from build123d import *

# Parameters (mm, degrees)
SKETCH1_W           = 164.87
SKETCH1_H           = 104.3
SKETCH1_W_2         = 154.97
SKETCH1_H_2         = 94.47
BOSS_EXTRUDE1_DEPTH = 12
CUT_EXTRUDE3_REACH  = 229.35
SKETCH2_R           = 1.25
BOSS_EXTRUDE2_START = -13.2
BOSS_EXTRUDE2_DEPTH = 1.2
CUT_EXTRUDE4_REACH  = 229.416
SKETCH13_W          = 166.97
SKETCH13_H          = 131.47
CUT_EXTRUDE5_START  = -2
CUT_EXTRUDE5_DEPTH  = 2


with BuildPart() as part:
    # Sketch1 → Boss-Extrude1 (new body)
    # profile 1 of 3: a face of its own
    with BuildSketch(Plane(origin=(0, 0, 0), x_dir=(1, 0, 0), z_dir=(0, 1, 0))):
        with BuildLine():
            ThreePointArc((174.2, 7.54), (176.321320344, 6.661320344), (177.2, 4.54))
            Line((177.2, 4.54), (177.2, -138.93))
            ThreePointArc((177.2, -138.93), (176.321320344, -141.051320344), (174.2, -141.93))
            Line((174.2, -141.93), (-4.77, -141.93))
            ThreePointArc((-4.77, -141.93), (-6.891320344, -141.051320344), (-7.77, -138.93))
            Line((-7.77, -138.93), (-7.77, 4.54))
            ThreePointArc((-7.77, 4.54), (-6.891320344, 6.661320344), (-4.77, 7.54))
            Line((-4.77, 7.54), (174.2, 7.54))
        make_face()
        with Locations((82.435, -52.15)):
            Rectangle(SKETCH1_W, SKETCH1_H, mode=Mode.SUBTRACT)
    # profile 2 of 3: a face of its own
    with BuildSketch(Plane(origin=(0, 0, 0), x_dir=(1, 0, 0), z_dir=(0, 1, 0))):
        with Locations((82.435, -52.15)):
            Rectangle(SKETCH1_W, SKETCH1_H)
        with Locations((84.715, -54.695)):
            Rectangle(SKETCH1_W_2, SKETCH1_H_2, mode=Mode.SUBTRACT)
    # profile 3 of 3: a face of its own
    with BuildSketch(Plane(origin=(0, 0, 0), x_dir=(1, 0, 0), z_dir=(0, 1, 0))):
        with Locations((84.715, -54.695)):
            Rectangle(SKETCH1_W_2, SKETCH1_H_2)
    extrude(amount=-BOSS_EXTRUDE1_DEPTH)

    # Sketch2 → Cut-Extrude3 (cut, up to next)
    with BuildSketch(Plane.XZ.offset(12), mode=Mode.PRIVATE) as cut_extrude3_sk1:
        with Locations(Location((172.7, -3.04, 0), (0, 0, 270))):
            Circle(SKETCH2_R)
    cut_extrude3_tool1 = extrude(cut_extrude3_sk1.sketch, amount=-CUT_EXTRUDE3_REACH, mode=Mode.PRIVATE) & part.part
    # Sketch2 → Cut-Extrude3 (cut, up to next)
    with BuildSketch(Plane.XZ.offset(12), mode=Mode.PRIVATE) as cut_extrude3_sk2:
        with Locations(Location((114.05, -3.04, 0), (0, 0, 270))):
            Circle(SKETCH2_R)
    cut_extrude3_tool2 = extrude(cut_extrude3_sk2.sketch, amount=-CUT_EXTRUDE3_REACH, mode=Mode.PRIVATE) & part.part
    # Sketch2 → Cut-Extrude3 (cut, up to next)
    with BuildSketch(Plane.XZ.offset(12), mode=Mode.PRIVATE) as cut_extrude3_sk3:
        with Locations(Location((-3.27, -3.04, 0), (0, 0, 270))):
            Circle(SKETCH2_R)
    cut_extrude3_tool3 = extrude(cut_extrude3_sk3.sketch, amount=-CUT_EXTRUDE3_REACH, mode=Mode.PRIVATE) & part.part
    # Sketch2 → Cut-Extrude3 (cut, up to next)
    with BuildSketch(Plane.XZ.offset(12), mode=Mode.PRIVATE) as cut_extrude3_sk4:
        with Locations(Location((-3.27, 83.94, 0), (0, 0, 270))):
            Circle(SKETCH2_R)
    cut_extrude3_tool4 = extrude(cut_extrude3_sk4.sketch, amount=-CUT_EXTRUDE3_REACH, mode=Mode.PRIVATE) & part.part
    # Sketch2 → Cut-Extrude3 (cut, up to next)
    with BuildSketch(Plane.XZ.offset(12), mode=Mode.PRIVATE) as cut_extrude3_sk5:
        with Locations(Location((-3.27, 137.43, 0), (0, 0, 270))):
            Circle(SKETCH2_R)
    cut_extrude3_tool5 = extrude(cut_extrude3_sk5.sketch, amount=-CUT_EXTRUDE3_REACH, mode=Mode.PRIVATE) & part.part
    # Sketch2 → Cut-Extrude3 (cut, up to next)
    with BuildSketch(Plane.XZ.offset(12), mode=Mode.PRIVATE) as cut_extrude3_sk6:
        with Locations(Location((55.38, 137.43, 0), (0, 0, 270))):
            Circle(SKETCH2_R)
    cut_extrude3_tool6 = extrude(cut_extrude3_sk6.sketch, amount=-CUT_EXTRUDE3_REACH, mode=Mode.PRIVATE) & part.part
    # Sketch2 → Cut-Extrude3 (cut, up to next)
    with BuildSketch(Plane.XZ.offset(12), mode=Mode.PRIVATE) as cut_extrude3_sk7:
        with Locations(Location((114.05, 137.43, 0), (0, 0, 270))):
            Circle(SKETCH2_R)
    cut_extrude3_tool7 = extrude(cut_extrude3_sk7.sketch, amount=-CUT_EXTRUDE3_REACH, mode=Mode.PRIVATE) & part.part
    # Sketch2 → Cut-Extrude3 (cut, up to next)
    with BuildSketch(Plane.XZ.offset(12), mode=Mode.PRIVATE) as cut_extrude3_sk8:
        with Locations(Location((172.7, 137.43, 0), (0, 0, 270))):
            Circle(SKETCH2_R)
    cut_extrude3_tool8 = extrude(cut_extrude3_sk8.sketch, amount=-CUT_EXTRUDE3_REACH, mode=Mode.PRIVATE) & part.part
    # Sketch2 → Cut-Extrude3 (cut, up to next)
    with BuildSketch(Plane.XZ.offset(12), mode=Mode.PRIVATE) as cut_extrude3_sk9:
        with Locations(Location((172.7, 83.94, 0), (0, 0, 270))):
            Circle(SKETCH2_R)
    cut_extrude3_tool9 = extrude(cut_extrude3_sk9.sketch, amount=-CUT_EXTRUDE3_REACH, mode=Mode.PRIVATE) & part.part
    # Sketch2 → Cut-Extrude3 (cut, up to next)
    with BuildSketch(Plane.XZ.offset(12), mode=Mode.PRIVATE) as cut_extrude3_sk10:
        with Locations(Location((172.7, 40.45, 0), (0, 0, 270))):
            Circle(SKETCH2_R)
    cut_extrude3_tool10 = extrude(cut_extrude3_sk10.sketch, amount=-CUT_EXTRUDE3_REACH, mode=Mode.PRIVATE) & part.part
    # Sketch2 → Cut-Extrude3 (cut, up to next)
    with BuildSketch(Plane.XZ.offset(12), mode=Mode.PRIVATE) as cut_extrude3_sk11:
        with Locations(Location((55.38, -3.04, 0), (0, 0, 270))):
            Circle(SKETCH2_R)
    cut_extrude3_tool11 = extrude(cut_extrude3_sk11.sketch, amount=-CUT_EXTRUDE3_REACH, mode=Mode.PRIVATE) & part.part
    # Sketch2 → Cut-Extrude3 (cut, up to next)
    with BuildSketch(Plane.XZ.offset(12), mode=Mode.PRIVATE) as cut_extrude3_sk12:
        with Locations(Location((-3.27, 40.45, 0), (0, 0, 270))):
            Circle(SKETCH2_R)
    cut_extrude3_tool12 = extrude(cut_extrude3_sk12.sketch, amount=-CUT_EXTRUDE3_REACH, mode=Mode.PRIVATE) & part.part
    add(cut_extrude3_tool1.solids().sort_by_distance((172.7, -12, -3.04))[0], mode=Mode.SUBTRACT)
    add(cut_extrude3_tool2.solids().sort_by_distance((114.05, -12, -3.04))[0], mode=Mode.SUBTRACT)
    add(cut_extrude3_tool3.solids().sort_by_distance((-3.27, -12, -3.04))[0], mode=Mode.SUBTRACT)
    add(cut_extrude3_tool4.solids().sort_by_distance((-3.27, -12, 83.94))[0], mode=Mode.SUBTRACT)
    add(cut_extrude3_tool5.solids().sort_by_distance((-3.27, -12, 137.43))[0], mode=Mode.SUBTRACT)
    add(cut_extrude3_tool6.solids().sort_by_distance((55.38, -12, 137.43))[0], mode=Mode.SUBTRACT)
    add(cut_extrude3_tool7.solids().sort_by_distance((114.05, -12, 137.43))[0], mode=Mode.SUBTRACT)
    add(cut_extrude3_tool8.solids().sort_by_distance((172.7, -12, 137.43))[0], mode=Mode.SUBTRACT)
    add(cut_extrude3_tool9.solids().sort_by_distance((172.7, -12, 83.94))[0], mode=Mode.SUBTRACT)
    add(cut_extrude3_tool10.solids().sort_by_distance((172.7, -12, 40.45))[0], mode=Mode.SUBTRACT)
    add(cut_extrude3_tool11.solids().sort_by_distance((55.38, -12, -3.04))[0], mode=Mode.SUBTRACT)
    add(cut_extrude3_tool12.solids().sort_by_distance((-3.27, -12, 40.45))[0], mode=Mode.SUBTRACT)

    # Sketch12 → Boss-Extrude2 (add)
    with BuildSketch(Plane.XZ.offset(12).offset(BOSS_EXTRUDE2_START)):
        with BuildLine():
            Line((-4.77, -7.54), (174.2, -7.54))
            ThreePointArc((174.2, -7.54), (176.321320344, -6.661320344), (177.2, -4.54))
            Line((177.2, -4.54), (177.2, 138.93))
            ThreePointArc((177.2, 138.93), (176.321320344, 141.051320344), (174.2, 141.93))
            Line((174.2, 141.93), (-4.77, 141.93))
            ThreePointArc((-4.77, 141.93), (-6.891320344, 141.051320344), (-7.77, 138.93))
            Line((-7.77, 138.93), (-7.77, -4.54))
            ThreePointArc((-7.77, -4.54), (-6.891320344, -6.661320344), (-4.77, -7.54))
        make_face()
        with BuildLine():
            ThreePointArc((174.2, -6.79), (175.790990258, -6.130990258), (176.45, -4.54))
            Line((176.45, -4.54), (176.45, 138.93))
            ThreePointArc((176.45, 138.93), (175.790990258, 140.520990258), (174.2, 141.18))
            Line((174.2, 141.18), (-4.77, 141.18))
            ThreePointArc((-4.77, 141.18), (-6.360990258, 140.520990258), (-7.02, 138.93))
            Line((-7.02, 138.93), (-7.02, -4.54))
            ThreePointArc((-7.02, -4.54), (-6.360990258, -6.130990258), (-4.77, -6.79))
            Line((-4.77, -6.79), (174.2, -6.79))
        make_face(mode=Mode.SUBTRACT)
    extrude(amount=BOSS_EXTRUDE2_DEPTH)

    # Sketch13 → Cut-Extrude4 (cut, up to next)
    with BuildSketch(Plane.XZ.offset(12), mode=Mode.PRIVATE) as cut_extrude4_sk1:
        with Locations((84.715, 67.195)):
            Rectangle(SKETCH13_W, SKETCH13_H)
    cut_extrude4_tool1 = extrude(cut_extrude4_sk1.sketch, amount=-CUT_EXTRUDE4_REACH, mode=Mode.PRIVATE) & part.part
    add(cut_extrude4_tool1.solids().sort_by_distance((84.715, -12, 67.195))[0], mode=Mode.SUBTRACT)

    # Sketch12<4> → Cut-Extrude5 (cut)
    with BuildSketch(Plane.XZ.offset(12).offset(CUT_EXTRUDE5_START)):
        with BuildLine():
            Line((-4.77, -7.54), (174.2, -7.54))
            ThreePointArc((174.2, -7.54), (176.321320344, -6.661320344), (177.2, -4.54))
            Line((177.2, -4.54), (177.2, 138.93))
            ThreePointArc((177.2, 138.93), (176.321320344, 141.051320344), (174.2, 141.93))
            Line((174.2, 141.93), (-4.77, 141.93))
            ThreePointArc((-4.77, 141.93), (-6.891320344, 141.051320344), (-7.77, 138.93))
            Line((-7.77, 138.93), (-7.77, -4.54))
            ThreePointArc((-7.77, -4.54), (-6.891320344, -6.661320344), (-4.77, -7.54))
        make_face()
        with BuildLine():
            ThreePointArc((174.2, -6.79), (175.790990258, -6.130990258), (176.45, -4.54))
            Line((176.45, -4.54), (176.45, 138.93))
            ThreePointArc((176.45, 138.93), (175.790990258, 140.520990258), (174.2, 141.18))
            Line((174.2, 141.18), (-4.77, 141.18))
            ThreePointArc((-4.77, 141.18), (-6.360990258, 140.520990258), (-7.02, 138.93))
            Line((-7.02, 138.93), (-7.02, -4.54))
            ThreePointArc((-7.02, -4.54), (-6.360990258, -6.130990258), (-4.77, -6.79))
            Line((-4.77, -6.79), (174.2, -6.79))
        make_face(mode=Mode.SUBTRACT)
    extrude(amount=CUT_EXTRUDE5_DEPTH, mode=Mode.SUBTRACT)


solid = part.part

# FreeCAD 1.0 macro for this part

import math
import FreeCAD as App
import Part
import Sketcher
Q = App.Units.Quantity


def add_polygon(sketch, points):
    """Adds a closed chain of lines whose ends are joined by coincident constraints."""
    first, n = sketch.GeometryCount, len(points)
    for a, b in zip(points, points[1:] + points[:1]):
        sketch.addGeometry(Part.LineSegment(App.Vector(*a, 0), App.Vector(*b, 0)), False)
    for i in range(n):
        sketch.addConstraint(Sketcher.Constraint("Coincident", first + i, 2, first + (i + 1) % n, 1))

doc = App.newDocument("Part")
params = doc.addObject("Spreadsheet::Sheet", "Params")
for row, (alias, value) in enumerate([
    ("sketch1_radius", "3 mm"),
    ("sketch1_width", "178.97 mm"),
    ("sketch1_height", "143.47 mm"),
    ("pad1_length", "12 mm"),
    ("sketch2_diameter", "2.5 mm"),
    ("sketch3_diameter", "2.5 mm"),
    ("sketch4_diameter", "2.5 mm"),
    ("sketch5_diameter", "2.5 mm"),
    ("sketch6_diameter", "2.5 mm"),
    ("sketch7_diameter", "2.5 mm"),
    ("sketch8_diameter", "2.5 mm"),
    ("sketch9_diameter", "2.5 mm"),
    ("sketch10_diameter", "2.5 mm"),
    ("sketch11_diameter", "2.5 mm"),
    ("sketch12_diameter", "2.5 mm"),
    ("sketch13_diameter", "2.5 mm"),
    ("sketch14_radius", "3 mm"),
    ("sketch14_radius2", "2.25 mm"),
    ("sketch14_width", "178.97 mm"),
    ("sketch14_height", "143.47 mm"),
    ("pad2_length", "1.2 mm"),
    ("sketch15_width", "166.97 mm"),
    ("sketch15_height", "131.47 mm"),
    ("sketch16_radius", "3 mm"),
    ("sketch16_radius2", "2.25 mm"),
    ("sketch16_width", "178.97 mm"),
    ("sketch16_height", "143.47 mm"),
    ("pocket14_length", "2 mm"),
], start=1):
    params.set(f"A{row}", alias)
    params.set(f"B{row}", "=" + value)
    params.setAlias(f"B{row}", alias)

body = doc.addObject("PartDesign::Body", "Body")

sketch1 = body.newObject("Sketcher::SketchObject", "Sketch")
sketch1.AttachmentSupport = (doc.getObject("XZ_Plane"), [""])
sketch1.MapMode = "FlatFace"
sketch1.addGeometry([
    Part.ArcOfCircle(Part.Circle(App.Vector(174.2, -4.5, 0), App.Vector(0, 0, 1), 3), math.radians(-90), math.radians(0)),
    Part.LineSegment(App.Vector(174.2, -7.5, 0), App.Vector(-4.8, -7.5, 0)),
    Part.ArcOfCircle(Part.Circle(App.Vector(-4.8, -4.5, 0), App.Vector(0, 0, 1), 3), math.radians(180), math.radians(270)),
    Part.LineSegment(App.Vector(-7.8, -4.5, 0), App.Vector(-7.8, 138.9, 0)),
    Part.ArcOfCircle(Part.Circle(App.Vector(-4.8, 138.9, 0), App.Vector(0, 0, 1), 3), math.radians(90), math.radians(180)),
    Part.LineSegment(App.Vector(-4.8, 141.9, 0), App.Vector(174.2, 141.9, 0)),
    Part.ArcOfCircle(Part.Circle(App.Vector(174.2, 138.9, 0), App.Vector(0, 0, 1), 3), math.radians(0), math.radians(90)),
    Part.LineSegment(App.Vector(177.2, 138.9, 0), App.Vector(177.2, -4.5, 0)),
], False)
sketch1.addConstraint([
    Sketcher.Constraint("Tangent", 0, 1, 1, 1),
    Sketcher.Constraint("Tangent", 1, 2, 2, 2),
    Sketcher.Constraint("Tangent", 2, 1, 3, 1),
    Sketcher.Constraint("Tangent", 3, 2, 4, 2),
    Sketcher.Constraint("Tangent", 4, 1, 5, 1),
    Sketcher.Constraint("Tangent", 5, 2, 6, 2),
    Sketcher.Constraint("Tangent", 6, 1, 7, 1),
    Sketcher.Constraint("Tangent", 7, 2, 0, 2),
    Sketcher.Constraint("Horizontal", 1),
    Sketcher.Constraint("Vertical", 3),
    Sketcher.Constraint("Horizontal", 5),
    Sketcher.Constraint("Vertical", 7),
    Sketcher.Constraint("Equal", 0, 2),
    Sketcher.Constraint("Equal", 2, 4),
    Sketcher.Constraint("Equal", 4, 6),
    Sketcher.Constraint("Radius", 0, Q("3 mm")),
    Sketcher.Constraint("DistanceX", 1, 2, 1, 1, Q("178.97 mm")),
    Sketcher.Constraint("DistanceY", 3, 1, 3, 2, Q("143.47 mm")),
    Sketcher.Constraint("DistanceX", -1, 1, 0, 3, Q("174.2 mm")),
    Sketcher.Constraint("DistanceY", 0, 3, -1, 1, Q("4.54 mm")),
])
sketch1.setExpression("Constraints[15]", "Params.sketch1_radius")
sketch1.setExpression("Constraints[16]", "Params.sketch1_width")
sketch1.setExpression("Constraints[17]", "Params.sketch1_height")
pad1 = body.newObject("PartDesign::Pad", "Pad")
pad1.Profile = sketch1
pad1.setExpression("Length", "Params.pad1_length")

sketch2 = body.newObject("Sketcher::SketchObject", "Sketch001")
sketch2.AttachmentSupport = (doc.getObject("XZ_Plane"), [""])
sketch2.MapMode = "FlatFace"
sketch2.AttachmentOffset = App.Placement(App.Vector(0, 0, 12), App.Rotation())
sketch2.addGeometry(Part.Circle(App.Vector(172.7, -3, 0), App.Vector(0, 0, 1), 1.2), False)
sketch2.addConstraint([
    Sketcher.Constraint("Diameter", 0, Q("2.5 mm")),
    Sketcher.Constraint("DistanceX", -1, 1, 0, 3, Q("172.7 mm")),
    Sketcher.Constraint("DistanceY", 0, 3, -1, 1, Q("3.04 mm")),
])
sketch2.setExpression("Constraints[0]", "Params.sketch2_diameter")
pocket1 = body.newObject("PartDesign::Pocket", "Pocket")
pocket1.Profile = sketch2
pocket1.Type = "UpToFirst"

sketch3 = body.newObject("Sketcher::SketchObject", "Sketch002")
sketch3.AttachmentSupport = (doc.getObject("XZ_Plane"), [""])
sketch3.MapMode = "FlatFace"
sketch3.AttachmentOffset = App.Placement(App.Vector(0, 0, 12), App.Rotation())
sketch3.addGeometry(Part.Circle(App.Vector(114, -3, 0), App.Vector(0, 0, 1), 1.2), False)
sketch3.addConstraint([
    Sketcher.Constraint("Diameter", 0, Q("2.5 mm")),
    Sketcher.Constraint("DistanceX", -1, 1, 0, 3, Q("114.05 mm")),
    Sketcher.Constraint("DistanceY", 0, 3, -1, 1, Q("3.04 mm")),
])
sketch3.setExpression("Constraints[0]", "Params.sketch3_diameter")
pocket2 = body.newObject("PartDesign::Pocket", "Pocket001")
pocket2.Profile = sketch3
pocket2.Type = "UpToFirst"

sketch4 = body.newObject("Sketcher::SketchObject", "Sketch003")
sketch4.AttachmentSupport = (doc.getObject("XZ_Plane"), [""])
sketch4.MapMode = "FlatFace"
sketch4.AttachmentOffset = App.Placement(App.Vector(0, 0, 12), App.Rotation())
sketch4.addGeometry(Part.Circle(App.Vector(-3.3, -3, 0), App.Vector(0, 0, 1), 1.2), False)
sketch4.addConstraint([
    Sketcher.Constraint("Diameter", 0, Q("2.5 mm")),
    Sketcher.Constraint("DistanceX", 0, 3, -1, 1, Q("3.27 mm")),
    Sketcher.Constraint("DistanceY", 0, 3, -1, 1, Q("3.04 mm")),
])
sketch4.setExpression("Constraints[0]", "Params.sketch4_diameter")
pocket3 = body.newObject("PartDesign::Pocket", "Pocket002")
pocket3.Profile = sketch4
pocket3.Type = "UpToFirst"

sketch5 = body.newObject("Sketcher::SketchObject", "Sketch004")
sketch5.AttachmentSupport = (doc.getObject("XZ_Plane"), [""])
sketch5.MapMode = "FlatFace"
sketch5.AttachmentOffset = App.Placement(App.Vector(0, 0, 12), App.Rotation())
sketch5.addGeometry(Part.Circle(App.Vector(-3.3, 83.9, 0), App.Vector(0, 0, 1), 1.2), False)
sketch5.addConstraint([
    Sketcher.Constraint("Diameter", 0, Q("2.5 mm")),
    Sketcher.Constraint("DistanceX", 0, 3, -1, 1, Q("3.27 mm")),
    Sketcher.Constraint("DistanceY", -1, 1, 0, 3, Q("83.94 mm")),
])
sketch5.setExpression("Constraints[0]", "Params.sketch5_diameter")
pocket4 = body.newObject("PartDesign::Pocket", "Pocket003")
pocket4.Profile = sketch5
pocket4.Type = "UpToFirst"

sketch6 = body.newObject("Sketcher::SketchObject", "Sketch005")
sketch6.AttachmentSupport = (doc.getObject("XZ_Plane"), [""])
sketch6.MapMode = "FlatFace"
sketch6.AttachmentOffset = App.Placement(App.Vector(0, 0, 12), App.Rotation())
sketch6.addGeometry(Part.Circle(App.Vector(-3.3, 137.4, 0), App.Vector(0, 0, 1), 1.2), False)
sketch6.addConstraint([
    Sketcher.Constraint("Diameter", 0, Q("2.5 mm")),
    Sketcher.Constraint("DistanceX", 0, 3, -1, 1, Q("3.27 mm")),
    Sketcher.Constraint("DistanceY", -1, 1, 0, 3, Q("137.43 mm")),
])
sketch6.setExpression("Constraints[0]", "Params.sketch6_diameter")
pocket5 = body.newObject("PartDesign::Pocket", "Pocket004")
pocket5.Profile = sketch6
pocket5.Type = "UpToFirst"

sketch7 = body.newObject("Sketcher::SketchObject", "Sketch006")
sketch7.AttachmentSupport = (doc.getObject("XZ_Plane"), [""])
sketch7.MapMode = "FlatFace"
sketch7.AttachmentOffset = App.Placement(App.Vector(0, 0, 12), App.Rotation())
sketch7.addGeometry(Part.Circle(App.Vector(55.4, 137.4, 0), App.Vector(0, 0, 1), 1.2), False)
sketch7.addConstraint([
    Sketcher.Constraint("Diameter", 0, Q("2.5 mm")),
    Sketcher.Constraint("DistanceX", -1, 1, 0, 3, Q("55.38 mm")),
    Sketcher.Constraint("DistanceY", -1, 1, 0, 3, Q("137.43 mm")),
])
sketch7.setExpression("Constraints[0]", "Params.sketch7_diameter")
pocket6 = body.newObject("PartDesign::Pocket", "Pocket005")
pocket6.Profile = sketch7
pocket6.Type = "UpToFirst"

sketch8 = body.newObject("Sketcher::SketchObject", "Sketch007")
sketch8.AttachmentSupport = (doc.getObject("XZ_Plane"), [""])
sketch8.MapMode = "FlatFace"
sketch8.AttachmentOffset = App.Placement(App.Vector(0, 0, 12), App.Rotation())
sketch8.addGeometry(Part.Circle(App.Vector(114, 137.4, 0), App.Vector(0, 0, 1), 1.2), False)
sketch8.addConstraint([
    Sketcher.Constraint("Diameter", 0, Q("2.5 mm")),
    Sketcher.Constraint("DistanceX", -1, 1, 0, 3, Q("114.05 mm")),
    Sketcher.Constraint("DistanceY", -1, 1, 0, 3, Q("137.43 mm")),
])
sketch8.setExpression("Constraints[0]", "Params.sketch8_diameter")
pocket7 = body.newObject("PartDesign::Pocket", "Pocket006")
pocket7.Profile = sketch8
pocket7.Type = "UpToFirst"

sketch9 = body.newObject("Sketcher::SketchObject", "Sketch008")
sketch9.AttachmentSupport = (doc.getObject("XZ_Plane"), [""])
sketch9.MapMode = "FlatFace"
sketch9.AttachmentOffset = App.Placement(App.Vector(0, 0, 12), App.Rotation())
sketch9.addGeometry(Part.Circle(App.Vector(172.7, 137.4, 0), App.Vector(0, 0, 1), 1.2), False)
sketch9.addConstraint([
    Sketcher.Constraint("Diameter", 0, Q("2.5 mm")),
    Sketcher.Constraint("DistanceX", -1, 1, 0, 3, Q("172.7 mm")),
    Sketcher.Constraint("DistanceY", -1, 1, 0, 3, Q("137.43 mm")),
])
sketch9.setExpression("Constraints[0]", "Params.sketch9_diameter")
pocket8 = body.newObject("PartDesign::Pocket", "Pocket007")
pocket8.Profile = sketch9
pocket8.Type = "UpToFirst"

sketch10 = body.newObject("Sketcher::SketchObject", "Sketch009")
sketch10.AttachmentSupport = (doc.getObject("XZ_Plane"), [""])
sketch10.MapMode = "FlatFace"
sketch10.AttachmentOffset = App.Placement(App.Vector(0, 0, 12), App.Rotation())
sketch10.addGeometry(Part.Circle(App.Vector(172.7, 83.9, 0), App.Vector(0, 0, 1), 1.2), False)
sketch10.addConstraint([
    Sketcher.Constraint("Diameter", 0, Q("2.5 mm")),
    Sketcher.Constraint("DistanceX", -1, 1, 0, 3, Q("172.7 mm")),
    Sketcher.Constraint("DistanceY", -1, 1, 0, 3, Q("83.94 mm")),
])
sketch10.setExpression("Constraints[0]", "Params.sketch10_diameter")
pocket9 = body.newObject("PartDesign::Pocket", "Pocket008")
pocket9.Profile = sketch10
pocket9.Type = "UpToFirst"

sketch11 = body.newObject("Sketcher::SketchObject", "Sketch010")
sketch11.AttachmentSupport = (doc.getObject("XZ_Plane"), [""])
sketch11.MapMode = "FlatFace"
sketch11.AttachmentOffset = App.Placement(App.Vector(0, 0, 12), App.Rotation())
sketch11.addGeometry(Part.Circle(App.Vector(172.7, 40.5, 0), App.Vector(0, 0, 1), 1.2), False)
sketch11.addConstraint([
    Sketcher.Constraint("Diameter", 0, Q("2.5 mm")),
    Sketcher.Constraint("DistanceX", -1, 1, 0, 3, Q("172.7 mm")),
    Sketcher.Constraint("DistanceY", -1, 1, 0, 3, Q("40.45 mm")),
])
sketch11.setExpression("Constraints[0]", "Params.sketch11_diameter")
pocket10 = body.newObject("PartDesign::Pocket", "Pocket009")
pocket10.Profile = sketch11
pocket10.Type = "UpToFirst"

sketch12 = body.newObject("Sketcher::SketchObject", "Sketch011")
sketch12.AttachmentSupport = (doc.getObject("XZ_Plane"), [""])
sketch12.MapMode = "FlatFace"
sketch12.AttachmentOffset = App.Placement(App.Vector(0, 0, 12), App.Rotation())
sketch12.addGeometry(Part.Circle(App.Vector(55.4, -3, 0), App.Vector(0, 0, 1), 1.2), False)
sketch12.addConstraint([
    Sketcher.Constraint("Diameter", 0, Q("2.5 mm")),
    Sketcher.Constraint("DistanceX", -1, 1, 0, 3, Q("55.38 mm")),
    Sketcher.Constraint("DistanceY", 0, 3, -1, 1, Q("3.04 mm")),
])
sketch12.setExpression("Constraints[0]", "Params.sketch12_diameter")
pocket11 = body.newObject("PartDesign::Pocket", "Pocket010")
pocket11.Profile = sketch12
pocket11.Type = "UpToFirst"

sketch13 = body.newObject("Sketcher::SketchObject", "Sketch012")
sketch13.AttachmentSupport = (doc.getObject("XZ_Plane"), [""])
sketch13.MapMode = "FlatFace"
sketch13.AttachmentOffset = App.Placement(App.Vector(0, 0, 12), App.Rotation())
sketch13.addGeometry(Part.Circle(App.Vector(-3.3, 40.5, 0), App.Vector(0, 0, 1), 1.2), False)
sketch13.addConstraint([
    Sketcher.Constraint("Diameter", 0, Q("2.5 mm")),
    Sketcher.Constraint("DistanceX", 0, 3, -1, 1, Q("3.27 mm")),
    Sketcher.Constraint("DistanceY", -1, 1, 0, 3, Q("40.45 mm")),
])
sketch13.setExpression("Constraints[0]", "Params.sketch13_diameter")
pocket12 = body.newObject("PartDesign::Pocket", "Pocket011")
pocket12.Profile = sketch13
pocket12.Type = "UpToFirst"

sketch14 = body.newObject("Sketcher::SketchObject", "Sketch013")
sketch14.AttachmentSupport = (doc.getObject("XZ_Plane"), [""])
sketch14.MapMode = "FlatFace"
sketch14.AttachmentOffset = App.Placement(App.Vector(0, 0, -1.2), App.Rotation())
sketch14.addGeometry([
    Part.LineSegment(App.Vector(-4.8, -7.5, 0), App.Vector(174.2, -7.5, 0)),
    Part.ArcOfCircle(Part.Circle(App.Vector(174.2, -4.5, 0), App.Vector(0, 0, 1), 3), math.radians(-90), math.radians(0)),
    Part.LineSegment(App.Vector(177.2, -4.5, 0), App.Vector(177.2, 138.9, 0)),
    Part.ArcOfCircle(Part.Circle(App.Vector(174.2, 138.9, 0), App.Vector(0, 0, 1), 3), math.radians(0), math.radians(90)),
    Part.LineSegment(App.Vector(174.2, 141.9, 0), App.Vector(-4.8, 141.9, 0)),
    Part.ArcOfCircle(Part.Circle(App.Vector(-4.8, 138.9, 0), App.Vector(0, 0, 1), 3), math.radians(90), math.radians(180)),
    Part.LineSegment(App.Vector(-7.8, 138.9, 0), App.Vector(-7.8, -4.5, 0)),
    Part.ArcOfCircle(Part.Circle(App.Vector(-4.8, -4.5, 0), App.Vector(0, 0, 1), 3), math.radians(180), math.radians(270)),
    Part.ArcOfCircle(Part.Circle(App.Vector(174.2, -4.5, 0), App.Vector(0, 0, 1), 2.2), math.radians(-90), math.radians(0)),
    Part.LineSegment(App.Vector(174.2, -6.8, 0), App.Vector(-4.8, -6.8, 0)),
    Part.ArcOfCircle(Part.Circle(App.Vector(-4.8, -4.5, 0), App.Vector(0, 0, 1), 2.2), math.radians(180), math.radians(270)),
    Part.LineSegment(App.Vector(-7, -4.5, 0), App.Vector(-7, 138.9, 0)),
    Part.ArcOfCircle(Part.Circle(App.Vector(-4.8, 138.9, 0), App.Vector(0, 0, 1), 2.2), math.radians(90), math.radians(180)),
    Part.LineSegment(App.Vector(-4.8, 141.2, 0), App.Vector(174.2, 141.2, 0)),
    Part.ArcOfCircle(Part.Circle(App.Vector(174.2, 138.9, 0), App.Vector(0, 0, 1), 2.2), math.radians(0), math.radians(90)),
    Part.LineSegment(App.Vector(176.4, 138.9, 0), App.Vector(176.4, -4.5, 0)),
], False)
sketch14.addConstraint([
    Sketcher.Constraint("Tangent", 0, 2, 1, 1),
    Sketcher.Constraint("Tangent", 1, 2, 2, 1),
    Sketcher.Constraint("Tangent", 2, 2, 3, 1),
    Sketcher.Constraint("Tangent", 3, 2, 4, 1),
    Sketcher.Constraint("Tangent", 4, 2, 5, 1),
    Sketcher.Constraint("Tangent", 5, 2, 6, 1),
    Sketcher.Constraint("Tangent", 6, 2, 7, 1),
    Sketcher.Constraint("Tangent", 7, 2, 0, 1),
    Sketcher.Constraint("Tangent", 8, 1, 9, 1),
    Sketcher.Constraint("Tangent", 9, 2, 10, 2),
    Sketcher.Constraint("Tangent", 10, 1, 11, 1),
    Sketcher.Constraint("Tangent", 11, 2, 12, 2),
    Sketcher.Constraint("Tangent", 12, 1, 13, 1),
    Sketcher.Constraint("Tangent", 13, 2, 14, 2),
    Sketcher.Constraint("Tangent", 14, 1, 15, 1),
    Sketcher.Constraint("Tangent", 15, 2, 8, 2),
    Sketcher.Constraint("Horizontal", 0),
    Sketcher.Constraint("Vertical", 2),
    Sketcher.Constraint("Horizontal", 4),
    Sketcher.Constraint("Vertical", 6),
    Sketcher.Constraint("Horizontal", 9),
    Sketcher.Constraint("Vertical", 11),
    Sketcher.Constraint("Horizontal", 13),
    Sketcher.Constraint("Vertical", 15),
    Sketcher.Constraint("Coincident", 8, 3, 1, 3),
    Sketcher.Constraint("Coincident", 10, 3, 7, 3),
    Sketcher.Constraint("Coincident", 12, 3, 5, 3),
    Sketcher.Constraint("Equal", 1, 3),
    Sketcher.Constraint("Equal", 3, 5),
    Sketcher.Constraint("Equal", 5, 7),
    Sketcher.Constraint("Equal", 12, 14),
    Sketcher.Constraint("Radius", 1, Q("3 mm")),
    Sketcher.Constraint("Radius", 8, Q("2.25 mm")),
    Sketcher.Constraint("DistanceX", 0, 1, 0, 2, Q("178.97 mm")),
    Sketcher.Constraint("DistanceY", 2, 1, 2, 2, Q("143.47 mm")),
    Sketcher.Constraint("DistanceX", -1, 1, 1, 3, Q("174.2 mm")),
    Sketcher.Constraint("DistanceY", 1, 3, -1, 1, Q("4.54 mm")),
])
sketch14.setExpression("Constraints[31]", "Params.sketch14_radius")
sketch14.setExpression("Constraints[32]", "Params.sketch14_radius2")
sketch14.setExpression("Constraints[33]", "Params.sketch14_width")
sketch14.setExpression("Constraints[34]", "Params.sketch14_height")
pad2 = body.newObject("PartDesign::Pad", "Pad001")
pad2.Profile = sketch14
pad2.setExpression("Length", "Params.pad2_length")

sketch15 = body.newObject("Sketcher::SketchObject", "Sketch014")
sketch15.AttachmentSupport = (doc.getObject("XZ_Plane"), [""])
sketch15.MapMode = "FlatFace"
sketch15.AttachmentOffset = App.Placement(App.Vector(0, 0, 12), App.Rotation())
add_polygon(sketch15, [(1, 133), (1, 1), (168, 1), (168, 133)])
sketch15.addConstraint([
    Sketcher.Constraint("Vertical", 0),
    Sketcher.Constraint("Horizontal", 1),
    Sketcher.Constraint("Vertical", 2),
    Sketcher.Constraint("Horizontal", 3),
    Sketcher.Constraint("DistanceX", 1, 1, 1, 2, Q("166.97 mm")),
    Sketcher.Constraint("DistanceY", 0, 2, 0, 1, Q("131.47 mm")),
    Sketcher.Constraint("DistanceX", -1, 1, 1, 2, Q("168.2 mm")),
    Sketcher.Constraint("DistanceY", -1, 1, 0, 2, Q("1.46 mm")),
])
sketch15.setExpression("Constraints[8]", "Params.sketch15_width")
sketch15.setExpression("Constraints[9]", "Params.sketch15_height")
pocket13 = body.newObject("PartDesign::Pocket", "Pocket012")
pocket13.Profile = sketch15
pocket13.Type = "UpToFirst"

sketch16 = body.newObject("Sketcher::SketchObject", "Sketch015")
sketch16.AttachmentSupport = (doc.getObject("XZ_Plane"), [""])
sketch16.MapMode = "FlatFace"
sketch16.AttachmentOffset = App.Placement(App.Vector(0, 0, 10), App.Rotation())
sketch16.addGeometry([
    Part.LineSegment(App.Vector(-4.8, -7.5, 0), App.Vector(174.2, -7.5, 0)),
    Part.ArcOfCircle(Part.Circle(App.Vector(174.2, -4.5, 0), App.Vector(0, 0, 1), 3), math.radians(-90), math.radians(0)),
    Part.LineSegment(App.Vector(177.2, -4.5, 0), App.Vector(177.2, 138.9, 0)),
    Part.ArcOfCircle(Part.Circle(App.Vector(174.2, 138.9, 0), App.Vector(0, 0, 1), 3), math.radians(0), math.radians(90)),
    Part.LineSegment(App.Vector(174.2, 141.9, 0), App.Vector(-4.8, 141.9, 0)),
    Part.ArcOfCircle(Part.Circle(App.Vector(-4.8, 138.9, 0), App.Vector(0, 0, 1), 3), math.radians(90), math.radians(180)),
    Part.LineSegment(App.Vector(-7.8, 138.9, 0), App.Vector(-7.8, -4.5, 0)),
    Part.ArcOfCircle(Part.Circle(App.Vector(-4.8, -4.5, 0), App.Vector(0, 0, 1), 3), math.radians(180), math.radians(270)),
    Part.ArcOfCircle(Part.Circle(App.Vector(174.2, -4.5, 0), App.Vector(0, 0, 1), 2.2), math.radians(-90), math.radians(0)),
    Part.LineSegment(App.Vector(174.2, -6.8, 0), App.Vector(-4.8, -6.8, 0)),
    Part.ArcOfCircle(Part.Circle(App.Vector(-4.8, -4.5, 0), App.Vector(0, 0, 1), 2.2), math.radians(180), math.radians(270)),
    Part.LineSegment(App.Vector(-7, -4.5, 0), App.Vector(-7, 138.9, 0)),
    Part.ArcOfCircle(Part.Circle(App.Vector(-4.8, 138.9, 0), App.Vector(0, 0, 1), 2.2), math.radians(90), math.radians(180)),
    Part.LineSegment(App.Vector(-4.8, 141.2, 0), App.Vector(174.2, 141.2, 0)),
    Part.ArcOfCircle(Part.Circle(App.Vector(174.2, 138.9, 0), App.Vector(0, 0, 1), 2.2), math.radians(0), math.radians(90)),
    Part.LineSegment(App.Vector(176.4, 138.9, 0), App.Vector(176.4, -4.5, 0)),
], False)
sketch16.addConstraint([
    Sketcher.Constraint("Tangent", 0, 2, 1, 1),
    Sketcher.Constraint("Tangent", 1, 2, 2, 1),
    Sketcher.Constraint("Tangent", 2, 2, 3, 1),
    Sketcher.Constraint("Tangent", 3, 2, 4, 1),
    Sketcher.Constraint("Tangent", 4, 2, 5, 1),
    Sketcher.Constraint("Tangent", 5, 2, 6, 1),
    Sketcher.Constraint("Tangent", 6, 2, 7, 1),
    Sketcher.Constraint("Tangent", 7, 2, 0, 1),
    Sketcher.Constraint("Tangent", 8, 1, 9, 1),
    Sketcher.Constraint("Tangent", 9, 2, 10, 2),
    Sketcher.Constraint("Tangent", 10, 1, 11, 1),
    Sketcher.Constraint("Tangent", 11, 2, 12, 2),
    Sketcher.Constraint("Tangent", 12, 1, 13, 1),
    Sketcher.Constraint("Tangent", 13, 2, 14, 2),
    Sketcher.Constraint("Tangent", 14, 1, 15, 1),
    Sketcher.Constraint("Tangent", 15, 2, 8, 2),
    Sketcher.Constraint("Horizontal", 0),
    Sketcher.Constraint("Vertical", 2),
    Sketcher.Constraint("Horizontal", 4),
    Sketcher.Constraint("Vertical", 6),
    Sketcher.Constraint("Horizontal", 9),
    Sketcher.Constraint("Vertical", 11),
    Sketcher.Constraint("Horizontal", 13),
    Sketcher.Constraint("Vertical", 15),
    Sketcher.Constraint("Coincident", 8, 3, 1, 3),
    Sketcher.Constraint("Coincident", 10, 3, 7, 3),
    Sketcher.Constraint("Coincident", 12, 3, 5, 3),
    Sketcher.Constraint("Equal", 1, 3),
    Sketcher.Constraint("Equal", 3, 5),
    Sketcher.Constraint("Equal", 5, 7),
    Sketcher.Constraint("Equal", 12, 14),
    Sketcher.Constraint("Radius", 1, Q("3 mm")),
    Sketcher.Constraint("Radius", 8, Q("2.25 mm")),
    Sketcher.Constraint("DistanceX", 0, 1, 0, 2, Q("178.97 mm")),
    Sketcher.Constraint("DistanceY", 2, 1, 2, 2, Q("143.47 mm")),
    Sketcher.Constraint("DistanceX", -1, 1, 1, 3, Q("174.2 mm")),
    Sketcher.Constraint("DistanceY", 1, 3, -1, 1, Q("4.54 mm")),
])
sketch16.setExpression("Constraints[31]", "Params.sketch16_radius")
sketch16.setExpression("Constraints[32]", "Params.sketch16_radius2")
sketch16.setExpression("Constraints[33]", "Params.sketch16_width")
sketch16.setExpression("Constraints[34]", "Params.sketch16_height")
pocket14 = body.newObject("PartDesign::Pocket", "Pocket013")
pocket14.Profile = sketch16
pocket14.setExpression("Length", "Params.pocket14_length")
pocket14.Reversed = True

doc.recompute()
